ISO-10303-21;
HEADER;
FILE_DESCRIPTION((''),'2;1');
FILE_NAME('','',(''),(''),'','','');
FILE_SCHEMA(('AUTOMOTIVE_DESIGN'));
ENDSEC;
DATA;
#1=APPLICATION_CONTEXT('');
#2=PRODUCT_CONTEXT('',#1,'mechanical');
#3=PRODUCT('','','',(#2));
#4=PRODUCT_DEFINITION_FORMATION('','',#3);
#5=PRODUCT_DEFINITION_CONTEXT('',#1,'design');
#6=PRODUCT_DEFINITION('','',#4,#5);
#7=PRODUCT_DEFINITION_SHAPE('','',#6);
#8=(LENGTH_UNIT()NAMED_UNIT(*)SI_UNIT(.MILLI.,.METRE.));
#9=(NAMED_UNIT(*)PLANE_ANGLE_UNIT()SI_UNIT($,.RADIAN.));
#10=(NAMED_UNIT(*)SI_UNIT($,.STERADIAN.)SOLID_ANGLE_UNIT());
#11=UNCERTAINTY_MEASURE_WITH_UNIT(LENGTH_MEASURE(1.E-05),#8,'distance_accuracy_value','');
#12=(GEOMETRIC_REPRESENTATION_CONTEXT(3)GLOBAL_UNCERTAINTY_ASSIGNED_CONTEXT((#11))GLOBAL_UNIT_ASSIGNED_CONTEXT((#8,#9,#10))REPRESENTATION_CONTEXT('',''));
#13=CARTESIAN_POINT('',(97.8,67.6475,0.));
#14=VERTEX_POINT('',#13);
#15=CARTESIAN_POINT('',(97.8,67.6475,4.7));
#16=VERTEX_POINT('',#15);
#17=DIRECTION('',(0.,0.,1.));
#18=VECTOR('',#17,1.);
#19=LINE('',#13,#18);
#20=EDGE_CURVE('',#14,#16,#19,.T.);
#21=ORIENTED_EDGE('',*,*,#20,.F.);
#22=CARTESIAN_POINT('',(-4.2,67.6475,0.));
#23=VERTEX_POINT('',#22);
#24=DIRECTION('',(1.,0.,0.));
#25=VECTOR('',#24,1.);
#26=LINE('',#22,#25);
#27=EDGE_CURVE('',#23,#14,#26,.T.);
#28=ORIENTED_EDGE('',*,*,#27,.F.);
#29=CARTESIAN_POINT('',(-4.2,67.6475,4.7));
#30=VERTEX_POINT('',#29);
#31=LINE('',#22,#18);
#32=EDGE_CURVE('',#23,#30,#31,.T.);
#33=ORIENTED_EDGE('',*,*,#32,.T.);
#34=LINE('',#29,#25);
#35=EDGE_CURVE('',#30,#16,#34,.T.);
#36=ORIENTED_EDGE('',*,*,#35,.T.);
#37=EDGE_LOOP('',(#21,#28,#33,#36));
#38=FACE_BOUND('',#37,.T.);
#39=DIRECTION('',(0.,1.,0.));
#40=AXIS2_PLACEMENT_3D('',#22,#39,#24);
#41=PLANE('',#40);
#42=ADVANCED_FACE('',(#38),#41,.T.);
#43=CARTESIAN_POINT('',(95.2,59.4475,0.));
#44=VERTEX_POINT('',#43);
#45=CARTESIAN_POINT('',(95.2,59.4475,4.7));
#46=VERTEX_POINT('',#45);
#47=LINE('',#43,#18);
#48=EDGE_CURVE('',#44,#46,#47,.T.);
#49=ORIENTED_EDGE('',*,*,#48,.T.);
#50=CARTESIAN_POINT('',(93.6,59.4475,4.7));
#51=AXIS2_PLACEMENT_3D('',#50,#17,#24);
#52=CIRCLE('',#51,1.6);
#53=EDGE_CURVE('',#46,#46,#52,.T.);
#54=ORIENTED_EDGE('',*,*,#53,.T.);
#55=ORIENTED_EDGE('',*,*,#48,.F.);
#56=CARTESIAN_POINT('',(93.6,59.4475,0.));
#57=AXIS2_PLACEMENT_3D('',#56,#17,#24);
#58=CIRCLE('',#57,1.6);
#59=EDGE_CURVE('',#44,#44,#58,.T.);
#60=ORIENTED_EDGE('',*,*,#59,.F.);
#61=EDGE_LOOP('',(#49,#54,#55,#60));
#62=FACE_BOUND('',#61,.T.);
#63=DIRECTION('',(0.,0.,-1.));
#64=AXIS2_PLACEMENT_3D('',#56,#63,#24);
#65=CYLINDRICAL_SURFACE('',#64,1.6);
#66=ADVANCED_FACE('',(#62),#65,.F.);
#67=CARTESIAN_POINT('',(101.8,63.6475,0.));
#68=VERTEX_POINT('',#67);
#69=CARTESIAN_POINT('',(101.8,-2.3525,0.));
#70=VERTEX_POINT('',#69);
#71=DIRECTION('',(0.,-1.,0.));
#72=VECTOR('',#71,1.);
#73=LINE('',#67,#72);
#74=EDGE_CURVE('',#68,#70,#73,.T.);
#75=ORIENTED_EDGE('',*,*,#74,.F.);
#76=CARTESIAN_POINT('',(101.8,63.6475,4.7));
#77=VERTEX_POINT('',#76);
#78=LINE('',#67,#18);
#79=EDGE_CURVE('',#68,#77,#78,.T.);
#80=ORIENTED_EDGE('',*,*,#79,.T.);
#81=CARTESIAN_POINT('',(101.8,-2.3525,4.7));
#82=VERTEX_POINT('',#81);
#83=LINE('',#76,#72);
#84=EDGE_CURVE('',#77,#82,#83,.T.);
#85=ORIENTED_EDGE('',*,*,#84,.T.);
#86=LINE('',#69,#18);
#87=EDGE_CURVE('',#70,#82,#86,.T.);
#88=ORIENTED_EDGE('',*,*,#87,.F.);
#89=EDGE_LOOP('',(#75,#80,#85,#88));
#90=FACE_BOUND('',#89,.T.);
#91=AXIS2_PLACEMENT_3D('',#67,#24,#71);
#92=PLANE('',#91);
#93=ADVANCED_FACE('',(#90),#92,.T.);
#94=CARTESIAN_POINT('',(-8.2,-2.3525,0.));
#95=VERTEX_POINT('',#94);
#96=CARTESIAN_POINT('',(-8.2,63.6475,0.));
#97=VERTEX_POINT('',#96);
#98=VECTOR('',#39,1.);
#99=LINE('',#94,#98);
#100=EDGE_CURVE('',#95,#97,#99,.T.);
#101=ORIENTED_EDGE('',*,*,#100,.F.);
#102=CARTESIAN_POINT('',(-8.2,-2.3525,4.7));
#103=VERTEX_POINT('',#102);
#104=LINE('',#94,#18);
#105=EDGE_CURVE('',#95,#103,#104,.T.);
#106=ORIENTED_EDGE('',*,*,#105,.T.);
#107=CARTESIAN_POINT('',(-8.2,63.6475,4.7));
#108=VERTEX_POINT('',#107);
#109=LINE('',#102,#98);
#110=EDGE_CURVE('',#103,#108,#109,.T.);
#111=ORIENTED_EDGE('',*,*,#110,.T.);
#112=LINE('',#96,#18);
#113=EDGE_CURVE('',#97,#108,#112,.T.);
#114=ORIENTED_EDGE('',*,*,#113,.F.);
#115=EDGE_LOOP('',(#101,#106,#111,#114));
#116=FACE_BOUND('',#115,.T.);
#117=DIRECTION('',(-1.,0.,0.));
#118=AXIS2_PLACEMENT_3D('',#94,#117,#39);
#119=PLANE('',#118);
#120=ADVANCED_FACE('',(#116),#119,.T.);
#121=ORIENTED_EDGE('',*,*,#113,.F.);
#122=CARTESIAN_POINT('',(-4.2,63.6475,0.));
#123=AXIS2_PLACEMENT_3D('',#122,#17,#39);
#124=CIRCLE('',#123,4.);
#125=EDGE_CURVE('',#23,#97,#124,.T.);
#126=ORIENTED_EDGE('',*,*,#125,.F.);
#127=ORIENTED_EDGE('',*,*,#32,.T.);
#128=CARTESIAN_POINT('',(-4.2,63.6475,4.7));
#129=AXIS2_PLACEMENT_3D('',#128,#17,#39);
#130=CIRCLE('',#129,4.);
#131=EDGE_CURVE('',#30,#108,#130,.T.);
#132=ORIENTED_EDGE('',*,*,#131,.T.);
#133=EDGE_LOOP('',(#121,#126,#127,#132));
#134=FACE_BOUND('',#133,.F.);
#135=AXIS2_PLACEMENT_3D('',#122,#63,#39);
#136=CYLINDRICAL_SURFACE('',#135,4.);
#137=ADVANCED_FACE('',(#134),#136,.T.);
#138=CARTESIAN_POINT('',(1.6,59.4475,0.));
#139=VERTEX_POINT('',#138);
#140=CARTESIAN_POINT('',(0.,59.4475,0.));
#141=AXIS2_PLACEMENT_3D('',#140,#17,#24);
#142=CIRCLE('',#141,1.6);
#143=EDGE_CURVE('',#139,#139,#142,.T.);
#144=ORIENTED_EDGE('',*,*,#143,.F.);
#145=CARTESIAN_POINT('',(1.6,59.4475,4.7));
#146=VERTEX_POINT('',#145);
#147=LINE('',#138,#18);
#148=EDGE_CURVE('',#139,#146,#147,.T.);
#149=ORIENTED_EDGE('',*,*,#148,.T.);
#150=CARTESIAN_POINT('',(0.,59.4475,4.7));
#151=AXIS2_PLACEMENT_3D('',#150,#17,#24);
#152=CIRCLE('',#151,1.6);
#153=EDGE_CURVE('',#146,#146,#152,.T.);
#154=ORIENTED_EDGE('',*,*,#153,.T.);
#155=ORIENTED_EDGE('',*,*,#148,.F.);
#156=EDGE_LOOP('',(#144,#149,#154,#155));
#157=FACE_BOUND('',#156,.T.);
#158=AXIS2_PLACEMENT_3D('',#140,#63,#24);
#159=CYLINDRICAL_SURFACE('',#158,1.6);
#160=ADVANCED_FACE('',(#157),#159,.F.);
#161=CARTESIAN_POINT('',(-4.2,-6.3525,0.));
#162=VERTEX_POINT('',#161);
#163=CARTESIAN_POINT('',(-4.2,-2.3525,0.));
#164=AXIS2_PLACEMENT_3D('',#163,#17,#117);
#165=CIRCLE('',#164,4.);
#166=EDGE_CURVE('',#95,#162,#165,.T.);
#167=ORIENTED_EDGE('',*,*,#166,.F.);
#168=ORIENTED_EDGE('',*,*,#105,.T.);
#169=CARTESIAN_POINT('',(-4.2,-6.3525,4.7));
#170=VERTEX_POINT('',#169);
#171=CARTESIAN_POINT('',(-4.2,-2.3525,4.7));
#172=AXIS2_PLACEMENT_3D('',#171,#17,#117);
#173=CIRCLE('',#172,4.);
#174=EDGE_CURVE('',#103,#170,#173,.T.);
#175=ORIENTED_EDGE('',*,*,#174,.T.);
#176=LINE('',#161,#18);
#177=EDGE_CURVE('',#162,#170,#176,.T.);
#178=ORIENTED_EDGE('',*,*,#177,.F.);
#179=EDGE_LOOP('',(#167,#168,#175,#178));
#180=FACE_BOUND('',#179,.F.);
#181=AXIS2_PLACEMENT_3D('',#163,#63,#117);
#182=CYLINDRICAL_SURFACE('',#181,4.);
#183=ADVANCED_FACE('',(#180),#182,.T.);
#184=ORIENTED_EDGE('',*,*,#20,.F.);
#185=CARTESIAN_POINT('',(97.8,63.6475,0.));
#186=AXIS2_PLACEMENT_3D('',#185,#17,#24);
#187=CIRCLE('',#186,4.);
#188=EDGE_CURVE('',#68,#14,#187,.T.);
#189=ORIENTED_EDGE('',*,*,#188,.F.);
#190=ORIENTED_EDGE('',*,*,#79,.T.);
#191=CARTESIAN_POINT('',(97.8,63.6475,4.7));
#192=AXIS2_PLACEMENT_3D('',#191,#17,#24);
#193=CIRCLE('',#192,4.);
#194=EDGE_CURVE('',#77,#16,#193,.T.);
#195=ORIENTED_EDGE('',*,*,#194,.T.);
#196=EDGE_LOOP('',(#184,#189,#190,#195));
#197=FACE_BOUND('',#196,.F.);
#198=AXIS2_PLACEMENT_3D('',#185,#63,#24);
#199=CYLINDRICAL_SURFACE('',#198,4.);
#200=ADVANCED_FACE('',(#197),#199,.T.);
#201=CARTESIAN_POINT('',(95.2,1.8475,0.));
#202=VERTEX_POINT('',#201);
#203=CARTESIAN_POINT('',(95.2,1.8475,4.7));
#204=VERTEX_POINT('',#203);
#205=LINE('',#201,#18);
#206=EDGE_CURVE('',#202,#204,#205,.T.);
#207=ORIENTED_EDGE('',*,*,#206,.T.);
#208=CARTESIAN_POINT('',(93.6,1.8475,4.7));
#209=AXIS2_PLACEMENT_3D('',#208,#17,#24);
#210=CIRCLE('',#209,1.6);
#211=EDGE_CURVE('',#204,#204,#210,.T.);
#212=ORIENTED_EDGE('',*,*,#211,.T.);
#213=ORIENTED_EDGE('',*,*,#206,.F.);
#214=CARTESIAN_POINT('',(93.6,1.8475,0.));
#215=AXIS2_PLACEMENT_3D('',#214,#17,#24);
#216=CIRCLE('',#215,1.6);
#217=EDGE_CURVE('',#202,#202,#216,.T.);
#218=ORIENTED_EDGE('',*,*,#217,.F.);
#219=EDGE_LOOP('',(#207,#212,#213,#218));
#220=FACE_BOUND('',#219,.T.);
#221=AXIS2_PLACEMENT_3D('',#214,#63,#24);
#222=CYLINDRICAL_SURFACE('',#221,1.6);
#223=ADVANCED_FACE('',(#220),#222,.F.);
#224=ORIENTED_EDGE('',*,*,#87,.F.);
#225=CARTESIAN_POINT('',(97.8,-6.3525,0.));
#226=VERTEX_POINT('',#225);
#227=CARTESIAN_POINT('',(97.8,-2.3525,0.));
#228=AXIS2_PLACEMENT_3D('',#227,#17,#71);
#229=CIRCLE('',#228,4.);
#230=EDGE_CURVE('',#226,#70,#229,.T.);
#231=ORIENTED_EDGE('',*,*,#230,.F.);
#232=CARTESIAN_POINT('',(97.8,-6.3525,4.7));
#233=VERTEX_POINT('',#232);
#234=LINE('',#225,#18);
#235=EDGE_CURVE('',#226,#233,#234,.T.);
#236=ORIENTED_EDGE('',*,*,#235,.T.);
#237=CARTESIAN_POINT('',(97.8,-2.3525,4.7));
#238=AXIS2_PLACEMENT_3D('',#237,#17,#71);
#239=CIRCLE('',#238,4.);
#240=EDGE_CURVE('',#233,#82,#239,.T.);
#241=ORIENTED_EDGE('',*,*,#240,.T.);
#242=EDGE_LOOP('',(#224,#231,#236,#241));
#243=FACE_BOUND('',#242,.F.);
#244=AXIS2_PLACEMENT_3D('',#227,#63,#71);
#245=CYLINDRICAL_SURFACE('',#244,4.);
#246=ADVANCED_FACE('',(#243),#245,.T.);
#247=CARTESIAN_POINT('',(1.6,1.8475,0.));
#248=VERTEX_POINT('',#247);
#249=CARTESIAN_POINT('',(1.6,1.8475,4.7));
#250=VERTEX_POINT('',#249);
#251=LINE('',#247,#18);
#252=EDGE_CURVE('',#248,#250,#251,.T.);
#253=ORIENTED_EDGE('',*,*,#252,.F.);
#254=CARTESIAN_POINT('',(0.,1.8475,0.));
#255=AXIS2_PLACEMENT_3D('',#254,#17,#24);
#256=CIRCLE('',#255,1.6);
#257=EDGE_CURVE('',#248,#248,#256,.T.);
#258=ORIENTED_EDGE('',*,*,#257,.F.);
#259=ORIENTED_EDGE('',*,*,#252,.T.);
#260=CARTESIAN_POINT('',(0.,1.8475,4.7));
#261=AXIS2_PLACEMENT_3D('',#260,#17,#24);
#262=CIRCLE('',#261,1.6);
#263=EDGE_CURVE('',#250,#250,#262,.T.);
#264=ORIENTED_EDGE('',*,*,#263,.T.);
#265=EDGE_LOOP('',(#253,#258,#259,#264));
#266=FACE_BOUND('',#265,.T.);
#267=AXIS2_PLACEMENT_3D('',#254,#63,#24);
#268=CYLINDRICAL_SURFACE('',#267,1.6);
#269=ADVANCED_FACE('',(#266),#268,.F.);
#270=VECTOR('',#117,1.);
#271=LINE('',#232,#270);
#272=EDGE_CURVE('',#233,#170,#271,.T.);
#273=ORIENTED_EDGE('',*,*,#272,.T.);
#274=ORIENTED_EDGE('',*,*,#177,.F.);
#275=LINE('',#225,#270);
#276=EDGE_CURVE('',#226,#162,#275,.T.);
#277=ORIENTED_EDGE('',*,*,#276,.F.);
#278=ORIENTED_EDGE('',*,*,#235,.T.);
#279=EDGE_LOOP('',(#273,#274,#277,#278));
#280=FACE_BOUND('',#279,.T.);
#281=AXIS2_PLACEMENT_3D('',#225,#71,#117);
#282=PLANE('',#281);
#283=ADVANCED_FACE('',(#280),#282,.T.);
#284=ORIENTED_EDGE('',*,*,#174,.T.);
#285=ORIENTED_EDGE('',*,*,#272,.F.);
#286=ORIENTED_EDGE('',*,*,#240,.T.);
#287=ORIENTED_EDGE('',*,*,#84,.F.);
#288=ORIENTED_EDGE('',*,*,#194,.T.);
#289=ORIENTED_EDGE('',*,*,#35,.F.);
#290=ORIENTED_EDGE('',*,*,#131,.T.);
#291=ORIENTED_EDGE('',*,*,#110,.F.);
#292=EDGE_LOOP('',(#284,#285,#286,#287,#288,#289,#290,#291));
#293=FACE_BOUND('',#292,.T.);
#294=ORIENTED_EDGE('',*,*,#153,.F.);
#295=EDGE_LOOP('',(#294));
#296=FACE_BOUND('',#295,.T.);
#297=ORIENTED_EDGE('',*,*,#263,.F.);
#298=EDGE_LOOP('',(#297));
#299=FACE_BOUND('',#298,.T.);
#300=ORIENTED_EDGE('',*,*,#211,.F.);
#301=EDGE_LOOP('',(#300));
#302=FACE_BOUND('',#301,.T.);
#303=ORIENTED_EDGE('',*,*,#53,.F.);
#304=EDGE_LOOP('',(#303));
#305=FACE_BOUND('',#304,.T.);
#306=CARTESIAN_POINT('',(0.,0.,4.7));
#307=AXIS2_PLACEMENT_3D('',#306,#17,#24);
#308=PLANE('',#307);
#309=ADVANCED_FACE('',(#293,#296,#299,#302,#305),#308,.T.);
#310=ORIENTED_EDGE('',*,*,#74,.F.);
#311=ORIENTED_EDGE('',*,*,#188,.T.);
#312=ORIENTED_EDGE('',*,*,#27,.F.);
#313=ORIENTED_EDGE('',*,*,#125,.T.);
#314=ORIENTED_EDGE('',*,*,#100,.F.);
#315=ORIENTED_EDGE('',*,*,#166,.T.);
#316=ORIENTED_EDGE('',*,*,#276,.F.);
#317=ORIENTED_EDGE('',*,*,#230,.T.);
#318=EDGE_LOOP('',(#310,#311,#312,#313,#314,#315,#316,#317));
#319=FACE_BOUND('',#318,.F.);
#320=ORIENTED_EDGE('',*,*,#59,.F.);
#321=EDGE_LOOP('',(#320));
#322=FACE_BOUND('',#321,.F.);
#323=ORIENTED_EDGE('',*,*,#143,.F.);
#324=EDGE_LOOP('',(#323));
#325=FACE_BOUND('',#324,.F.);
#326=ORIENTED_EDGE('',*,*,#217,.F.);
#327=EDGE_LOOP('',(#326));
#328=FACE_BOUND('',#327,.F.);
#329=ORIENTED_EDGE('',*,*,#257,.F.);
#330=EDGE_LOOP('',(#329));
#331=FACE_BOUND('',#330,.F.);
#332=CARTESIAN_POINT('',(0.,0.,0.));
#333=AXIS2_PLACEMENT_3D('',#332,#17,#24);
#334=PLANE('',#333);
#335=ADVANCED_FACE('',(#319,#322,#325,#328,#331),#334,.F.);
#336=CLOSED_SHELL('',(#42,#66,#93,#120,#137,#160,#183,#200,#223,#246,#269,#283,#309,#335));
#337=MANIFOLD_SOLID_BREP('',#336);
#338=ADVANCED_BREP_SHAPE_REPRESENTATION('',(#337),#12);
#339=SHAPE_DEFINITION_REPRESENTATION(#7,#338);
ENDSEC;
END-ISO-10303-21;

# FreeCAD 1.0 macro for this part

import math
import FreeCAD as App
import Part
import Sketcher

doc = App.newDocument("Part")
params = doc.addObject("Spreadsheet::Sheet", "Params")
for row, (alias, value) in enumerate([
    ("sketch1_radius", "4 mm"),
    ("sketch1_diameter", "3.2 mm"),
    ("sketch1_width", "102 mm"),
    ("sketch1_height", "66 mm"),
    ("pad1_length", "4.7 mm"),
], start=1):
    params.set(f"A{row}", alias)
    params.set(f"B{row}", "=" + value)
    params.setAlias(f"B{row}", alias)

body = doc.addObject("PartDesign::Body", "Body")

# Sketch on XY plane
sketch1 = doc.addObject("Sketcher::SketchObject", "Sketch")
body.addObject(sketch1)
sketch1.AttachmentSupport = (doc.XY_Plane, [""])
sketch1.MapMode = "FlatFace"
sketch1.addGeometry(Part.LineSegment(App.Vector(97.8, 67.6, 0), App.Vector(-4.2, 67.6, 0)), False)
sketch1.addGeometry(Part.ArcOfCircle(Part.Circle(App.Vector(-4.2, 63.6, 0), App.Vector(0, 0, 1), 4), math.radians(90), math.radians(180)), False)
sketch1.addGeometry(Part.LineSegment(App.Vector(-8.2, 63.6, 0), App.Vector(-8.2, -2.4, 0)), False)
sketch1.addGeometry(Part.ArcOfCircle(Part.Circle(App.Vector(-4.2, -2.4, 0), App.Vector(0, 0, 1), 4), math.radians(180), math.radians(270)), False)
sketch1.addGeometry(Part.LineSegment(App.Vector(-4.2, -6.4, 0), App.Vector(97.8, -6.4, 0)), False)
sketch1.addGeometry(Part.ArcOfCircle(Part.Circle(App.Vector(97.8, -2.4, 0), App.Vector(0, 0, 1), 4), math.radians(-90), math.radians(0)), False)
sketch1.addGeometry(Part.LineSegment(App.Vector(101.8, -2.4, 0), App.Vector(101.8, 63.6, 0)), False)
sketch1.addGeometry(Part.ArcOfCircle(Part.Circle(App.Vector(97.8, 63.6, 0), App.Vector(0, 0, 1), 4), math.radians(0), math.radians(90)), False)
sketch1.addGeometry(Part.Circle(App.Vector(0, 1.8, 0), App.Vector(0, 0, 1), 1.6), False)
sketch1.addGeometry(Part.Circle(App.Vector(93.6, 1.8, 0), App.Vector(0, 0, 1), 1.6), False)
sketch1.addGeometry(Part.Circle(App.Vector(0, 59.4, 0), App.Vector(0, 0, 1), 1.6), False)
sketch1.addGeometry(Part.Circle(App.Vector(93.6, 59.4, 0), App.Vector(0, 0, 1), 1.6), False)
sketch1.addConstraint(Sketcher.Constraint("Tangent", 0, 2, 1, 1))
sketch1.addConstraint(Sketcher.Constraint("Tangent", 1, 2, 2, 1))
sketch1.addConstraint(Sketcher.Constraint("Tangent", 2, 2, 3, 1))
sketch1.addConstraint(Sketcher.Constraint("Tangent", 3, 2, 4, 1))
sketch1.addConstraint(Sketcher.Constraint("Tangent", 4, 2, 5, 1))
sketch1.addConstraint(Sketcher.Constraint("Tangent", 5, 2, 6, 1))
sketch1.addConstraint(Sketcher.Constraint("Tangent", 6, 2, 7, 1))
sketch1.addConstraint(Sketcher.Constraint("Tangent", 7, 2, 0, 1))
sketch1.addConstraint(Sketcher.Constraint("Horizontal", 0))
sketch1.addConstraint(Sketcher.Constraint("Vertical", 2))
sketch1.addConstraint(Sketcher.Constraint("Horizontal", 4))
sketch1.addConstraint(Sketcher.Constraint("Vertical", 6))
sketch1.addConstraint(Sketcher.Constraint("Equal", 1, 3))
sketch1.addConstraint(Sketcher.Constraint("Equal", 3, 5))
sketch1.addConstraint(Sketcher.Constraint("Equal", 5, 7))
sketch1.addConstraint(Sketcher.Constraint("Equal", 8, 9))
sketch1.addConstraint(Sketcher.Constraint("Equal", 9, 10))
sketch1.addConstraint(Sketcher.Constraint("Equal", 10, 11))
sketch1.addConstraint(Sketcher.Constraint("PointOnObject", 8, 3, -2))
sketch1.addConstraint(Sketcher.Constraint("PointOnObject", 10, 3, -2))
sketch1.addConstraint(Sketcher.Constraint("Horizontal", 8, 3, 9, 3))
sketch1.addConstraint(Sketcher.Constraint("Horizontal", 10, 3, 11, 3))
sketch1.addConstraint(Sketcher.Constraint("Vertical", 9, 3, 11, 3))
sketch1.addConstraint(Sketcher.Constraint("Radius", 1, 4.0))
sketch1.addConstraint(Sketcher.Constraint("Diameter", 8, 3.2))
sketch1.addConstraint(Sketcher.Constraint("DistanceX", 0, 2, 0, 1, 102.0))
sketch1.addConstraint(Sketcher.Constraint("DistanceY", 2, 2, 2, 1, 66.0))
sketch1.addConstraint(Sketcher.Constraint("DistanceX", 1, 3, -1, 1, 4.2))
sketch1.addConstraint(Sketcher.Constraint("DistanceX", -1, 1, 9, 3, 93.6))
sketch1.addConstraint(Sketcher.Constraint("DistanceY", 3, 3, 8, 3, 4.2))
sketch1.addConstraint(Sketcher.Constraint("DistanceY", 10, 3, 1, 3, 4.2))
sketch1.addConstraint(Sketcher.Constraint("DistanceY", -1, 1, 1, 3, 63.6475))
sketch1.setExpression("Constraints[23]", "Params.sketch1_radius")
sketch1.setExpression("Constraints[24]", "Params.sketch1_diameter")
sketch1.setExpression("Constraints[25]", "Params.sketch1_width")
sketch1.setExpression("Constraints[26]", "Params.sketch1_height")
pad1 = doc.addObject("PartDesign::Pad", "Pad")
body.addObject(pad1)
pad1.Profile = sketch1
pad1.setExpression("Length", "Params.pad1_length")

doc.recompute()
